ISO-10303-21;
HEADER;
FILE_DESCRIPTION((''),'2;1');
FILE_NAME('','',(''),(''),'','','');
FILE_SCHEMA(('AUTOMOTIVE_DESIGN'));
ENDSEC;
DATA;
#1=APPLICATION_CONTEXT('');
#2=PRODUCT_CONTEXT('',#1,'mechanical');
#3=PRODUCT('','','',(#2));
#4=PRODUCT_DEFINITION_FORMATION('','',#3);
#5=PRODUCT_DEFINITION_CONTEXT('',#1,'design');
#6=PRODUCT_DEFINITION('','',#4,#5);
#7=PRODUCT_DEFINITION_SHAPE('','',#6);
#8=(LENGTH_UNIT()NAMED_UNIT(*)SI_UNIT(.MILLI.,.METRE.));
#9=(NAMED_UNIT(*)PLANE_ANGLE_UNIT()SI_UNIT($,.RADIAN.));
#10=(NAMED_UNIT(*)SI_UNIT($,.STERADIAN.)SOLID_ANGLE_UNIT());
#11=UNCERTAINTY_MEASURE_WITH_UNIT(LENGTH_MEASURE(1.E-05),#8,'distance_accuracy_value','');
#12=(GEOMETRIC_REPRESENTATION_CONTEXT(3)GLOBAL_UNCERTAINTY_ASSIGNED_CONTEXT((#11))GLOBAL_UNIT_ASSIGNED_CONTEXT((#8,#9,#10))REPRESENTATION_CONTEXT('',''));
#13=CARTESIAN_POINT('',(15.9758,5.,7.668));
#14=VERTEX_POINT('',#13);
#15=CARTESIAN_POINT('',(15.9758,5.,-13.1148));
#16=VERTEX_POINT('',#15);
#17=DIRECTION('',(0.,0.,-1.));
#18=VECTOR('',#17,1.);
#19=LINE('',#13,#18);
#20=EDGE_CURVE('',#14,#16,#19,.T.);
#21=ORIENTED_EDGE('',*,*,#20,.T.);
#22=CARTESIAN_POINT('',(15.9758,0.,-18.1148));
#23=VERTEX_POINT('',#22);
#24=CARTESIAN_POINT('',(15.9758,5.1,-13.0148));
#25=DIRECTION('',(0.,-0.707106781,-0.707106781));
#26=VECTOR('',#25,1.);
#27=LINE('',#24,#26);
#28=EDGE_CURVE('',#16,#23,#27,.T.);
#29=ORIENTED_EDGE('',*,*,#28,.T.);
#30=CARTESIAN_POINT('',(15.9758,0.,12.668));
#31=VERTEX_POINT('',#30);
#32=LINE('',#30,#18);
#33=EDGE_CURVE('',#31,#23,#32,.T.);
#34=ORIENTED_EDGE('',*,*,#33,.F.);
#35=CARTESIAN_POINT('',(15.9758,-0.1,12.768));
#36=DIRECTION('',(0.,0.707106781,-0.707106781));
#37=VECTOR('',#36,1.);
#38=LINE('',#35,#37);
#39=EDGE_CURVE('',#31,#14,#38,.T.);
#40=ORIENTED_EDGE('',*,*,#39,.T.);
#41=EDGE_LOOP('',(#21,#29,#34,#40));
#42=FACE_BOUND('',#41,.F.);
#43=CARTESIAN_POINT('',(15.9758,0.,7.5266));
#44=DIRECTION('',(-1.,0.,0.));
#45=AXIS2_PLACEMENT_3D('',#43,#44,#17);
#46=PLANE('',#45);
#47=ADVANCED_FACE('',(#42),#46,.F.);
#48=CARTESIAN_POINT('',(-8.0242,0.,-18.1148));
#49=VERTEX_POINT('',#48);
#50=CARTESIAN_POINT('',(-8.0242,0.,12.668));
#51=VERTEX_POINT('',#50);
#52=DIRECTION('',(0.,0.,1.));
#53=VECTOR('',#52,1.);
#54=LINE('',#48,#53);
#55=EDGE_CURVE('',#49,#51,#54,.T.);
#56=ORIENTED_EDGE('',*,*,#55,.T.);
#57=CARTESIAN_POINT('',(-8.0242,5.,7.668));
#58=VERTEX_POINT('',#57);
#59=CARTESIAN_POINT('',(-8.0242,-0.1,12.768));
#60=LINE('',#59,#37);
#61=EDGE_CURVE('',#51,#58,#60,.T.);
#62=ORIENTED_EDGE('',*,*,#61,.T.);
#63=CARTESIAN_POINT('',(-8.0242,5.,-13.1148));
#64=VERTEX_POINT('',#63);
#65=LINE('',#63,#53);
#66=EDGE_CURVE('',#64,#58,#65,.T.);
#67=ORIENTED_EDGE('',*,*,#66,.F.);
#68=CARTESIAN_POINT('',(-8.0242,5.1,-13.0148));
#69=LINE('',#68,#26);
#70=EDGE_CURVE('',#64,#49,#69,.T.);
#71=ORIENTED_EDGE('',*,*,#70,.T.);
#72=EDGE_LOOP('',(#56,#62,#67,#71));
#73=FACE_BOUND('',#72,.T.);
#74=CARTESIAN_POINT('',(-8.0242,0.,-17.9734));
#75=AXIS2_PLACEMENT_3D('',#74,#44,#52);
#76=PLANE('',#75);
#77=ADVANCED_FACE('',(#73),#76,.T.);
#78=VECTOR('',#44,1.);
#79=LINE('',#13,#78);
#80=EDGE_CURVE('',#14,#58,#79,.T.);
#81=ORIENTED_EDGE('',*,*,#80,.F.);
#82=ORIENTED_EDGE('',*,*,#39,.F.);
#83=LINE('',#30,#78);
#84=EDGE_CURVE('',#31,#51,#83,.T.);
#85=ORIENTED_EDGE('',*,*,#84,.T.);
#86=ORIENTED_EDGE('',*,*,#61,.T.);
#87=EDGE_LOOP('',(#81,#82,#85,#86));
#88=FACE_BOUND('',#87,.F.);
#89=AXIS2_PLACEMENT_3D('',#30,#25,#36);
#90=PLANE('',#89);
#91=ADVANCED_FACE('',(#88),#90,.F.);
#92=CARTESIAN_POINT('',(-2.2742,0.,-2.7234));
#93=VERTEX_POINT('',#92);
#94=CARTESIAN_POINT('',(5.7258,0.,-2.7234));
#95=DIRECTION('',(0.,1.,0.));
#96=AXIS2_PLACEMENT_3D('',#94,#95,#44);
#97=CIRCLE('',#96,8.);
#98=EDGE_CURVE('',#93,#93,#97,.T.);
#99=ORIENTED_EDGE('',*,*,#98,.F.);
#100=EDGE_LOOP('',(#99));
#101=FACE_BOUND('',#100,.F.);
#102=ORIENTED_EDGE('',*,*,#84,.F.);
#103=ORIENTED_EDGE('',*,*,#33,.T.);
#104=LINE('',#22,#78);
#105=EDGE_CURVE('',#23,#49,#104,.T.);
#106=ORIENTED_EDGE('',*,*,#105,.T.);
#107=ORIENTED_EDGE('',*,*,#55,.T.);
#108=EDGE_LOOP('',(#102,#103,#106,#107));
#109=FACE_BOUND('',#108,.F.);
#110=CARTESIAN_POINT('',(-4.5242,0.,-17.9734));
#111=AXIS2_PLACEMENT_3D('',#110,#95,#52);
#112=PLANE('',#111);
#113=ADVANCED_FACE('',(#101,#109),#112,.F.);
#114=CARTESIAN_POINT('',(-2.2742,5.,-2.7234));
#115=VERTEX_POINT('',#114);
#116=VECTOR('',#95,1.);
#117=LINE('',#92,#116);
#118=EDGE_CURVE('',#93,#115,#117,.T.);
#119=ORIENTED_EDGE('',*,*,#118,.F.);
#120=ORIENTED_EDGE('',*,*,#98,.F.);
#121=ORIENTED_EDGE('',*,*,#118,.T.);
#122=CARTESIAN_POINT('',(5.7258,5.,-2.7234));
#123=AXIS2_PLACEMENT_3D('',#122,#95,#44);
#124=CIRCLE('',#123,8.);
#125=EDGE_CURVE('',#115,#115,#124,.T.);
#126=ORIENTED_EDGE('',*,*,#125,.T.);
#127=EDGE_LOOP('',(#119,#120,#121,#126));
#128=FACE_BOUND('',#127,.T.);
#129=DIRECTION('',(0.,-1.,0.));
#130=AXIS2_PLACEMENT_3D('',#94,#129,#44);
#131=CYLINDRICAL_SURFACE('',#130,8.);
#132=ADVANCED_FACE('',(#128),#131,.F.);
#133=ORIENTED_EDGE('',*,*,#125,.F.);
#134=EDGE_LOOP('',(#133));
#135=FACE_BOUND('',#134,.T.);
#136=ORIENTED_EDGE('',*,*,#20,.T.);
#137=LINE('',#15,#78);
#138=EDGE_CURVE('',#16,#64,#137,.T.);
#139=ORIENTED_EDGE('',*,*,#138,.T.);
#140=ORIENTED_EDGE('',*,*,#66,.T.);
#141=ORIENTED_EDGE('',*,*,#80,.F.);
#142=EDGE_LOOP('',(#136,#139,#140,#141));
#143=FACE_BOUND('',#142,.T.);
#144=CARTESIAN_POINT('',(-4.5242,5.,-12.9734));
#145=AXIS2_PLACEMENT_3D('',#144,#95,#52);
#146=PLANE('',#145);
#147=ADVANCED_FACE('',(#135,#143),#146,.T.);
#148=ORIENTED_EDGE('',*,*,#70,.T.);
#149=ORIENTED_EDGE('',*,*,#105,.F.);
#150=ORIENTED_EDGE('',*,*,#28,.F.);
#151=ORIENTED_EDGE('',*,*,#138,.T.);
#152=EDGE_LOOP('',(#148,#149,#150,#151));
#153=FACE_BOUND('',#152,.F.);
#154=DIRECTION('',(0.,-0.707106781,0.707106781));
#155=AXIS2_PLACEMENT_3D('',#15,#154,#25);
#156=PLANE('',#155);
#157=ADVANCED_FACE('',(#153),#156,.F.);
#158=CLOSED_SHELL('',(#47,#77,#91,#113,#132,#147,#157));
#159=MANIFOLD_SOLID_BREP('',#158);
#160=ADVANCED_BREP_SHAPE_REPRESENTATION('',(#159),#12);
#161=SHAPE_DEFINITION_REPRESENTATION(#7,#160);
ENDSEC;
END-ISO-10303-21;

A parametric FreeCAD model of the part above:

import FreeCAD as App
import Part
import Sketcher

V = App.Vector

doc = App.newDocument("Part")
body = doc.addObject("PartDesign::Body", "Body")

# Sketch on XZ plane
sketch1 = body.newObject("Sketcher::SketchObject", "Sketch")
sketch1.AttachmentSupport = (doc.getObject("XZ_Plane"), [""])
sketch1.MapMode = "FlatFace"
sketch1.addGeometry([
    Part.LineSegment(V(-5, -13, 0), V(-5, 8, 0)),  # 0
    Part.LineSegment(V(-5, 8, 0), V(16, 8, 0)),  # 1
    Part.LineSegment(V(16, 8, 0), V(16, -13, 0)),  # 2
    Part.LineSegment(V(16, -13, 0), V(-5, -13, 0)),  # 3
    Part.Circle(V(6, -3, 0), V(0, 0, 1), 8),  # 4
], False)
sketch1.addConstraint([
    Sketcher.Constraint("Coincident", 0, 2, 1, 1),
    Sketcher.Constraint("Coincident", 1, 2, 2, 1),
    Sketcher.Constraint("Coincident", 2, 2, 3, 1),
    Sketcher.Constraint("Coincident", 3, 2, 0, 1),
    Sketcher.Constraint("Vertical", 0),
    Sketcher.Constraint("Horizontal", 1),
    Sketcher.Constraint("Vertical", 2),
    Sketcher.Constraint("Horizontal", 3),
    Sketcher.Constraint("Equal", 3, 0),
    Sketcher.Constraint("Diameter", 4, 16.0),
    Sketcher.Constraint("DistanceX", 1, 1, 1, 2, 20.5),
    Sketcher.Constraint("DistanceX", 0, 2, 4, 3, 10.25),
    Sketcher.Constraint("DistanceY", 4, 3, 0, 2, 10.25),
    Sketcher.Constraint("DistanceX", -1, 1, 4, 3, 5.7258),
    Sketcher.Constraint("DistanceY", 4, 3, -1, 1, 2.7234),
])
pad1 = body.newObject("PartDesign::Pad", "Pad")
pad1.Profile = sketch1
pad1.Length = 5
pad1.Reversed = True

# Sketch on YZ plane
sketch2 = body.newObject("Sketcher::SketchObject", "Sketch001")
sketch2.AttachmentSupport = (doc.getObject("YZ_Plane"), [""])
sketch2.MapMode = "FlatFace"
sketch2.AttachmentOffset = App.Placement(V(0, 0, -4.5242), App.Rotation())
sketch2.addGeometry([
    Part.LineSegment(V(5, 8, 0), V(0, 8, 0)),  # 0
    Part.LineSegment(V(0, 8, 0), V(0, 13, 0)),  # 1
    Part.LineSegment(V(0, 13, 0), V(5, 8, 0)),  # 2
    Part.LineSegment(V(0, -18, 0), V(0, -13, 0)),  # 3
    Part.LineSegment(V(0, -13, 0), V(5, -13, 0)),  # 4
    Part.LineSegment(V(5, -13, 0), V(0, -18, 0)),  # 5
], False)
sketch2.addConstraint([
    Sketcher.Constraint("Coincident", 0, 2, 1, 1),
    Sketcher.Constraint("Coincident", 1, 2, 2, 1),
    Sketcher.Constraint("Coincident", 2, 2, 0, 1),
    Sketcher.Constraint("Coincident", 3, 2, 4, 1),
    Sketcher.Constraint("Coincident", 4, 2, 5, 1),
    Sketcher.Constraint("Coincident", 5, 2, 3, 1),
    Sketcher.Constraint("Horizontal", 0),
    Sketcher.Constraint("Vertical", 1),
    Sketcher.Constraint("Vertical", 3),
    Sketcher.Constraint("Horizontal", 4),
    Sketcher.Constraint("PointOnObject", 0, 2, -2),
    Sketcher.Constraint("PointOnObject", 3, 2, -2),
    Sketcher.Constraint("Perpendicular", 2, 5),
    Sketcher.Constraint("Vertical", 2, 2, 4, 2),
    Sketcher.Constraint("Equal", 4, 1),
    Sketcher.Constraint("DistanceX", 0, 2, 0, 1, 5.0),
    Sketcher.Constraint("DistanceY", 3, 2, 0, 2, 20.5),
    Sketcher.Constraint("DistanceY", -1, 1, 0, 2, 7.5266),
])
pad2 = body.newObject("PartDesign::Pad", "Pad001")
pad2.Profile = sketch2
pad2.Length = 20.5

# Sketch on YZ plane
sketch3 = body.newObject("Sketcher::SketchObject", "Sketch002")
sketch3.AttachmentSupport = (doc.getObject("YZ_Plane"), [""])
sketch3.MapMode = "FlatFace"
sketch3.AttachmentOffset = App.Placement(V(0, 0, -4.5242), App.Rotation())
sketch3.addGeometry([
    Part.LineSegment(V(5, -13, 0), V(0, -18, 0)),
    Part.LineSegment(V(0, -18, 0), V(0, 13, 0)),
    Part.LineSegment(V(0, 13, 0), V(5, 8, 0)),
    Part.LineSegment(V(5, 8, 0), V(5, -13, 0)),
], False)
sketch3.addConstraint([
    Sketcher.Constraint("Coincident", 0, 2, 1, 1),
    Sketcher.Constraint("Coincident", 1, 2, 2, 1),
    Sketcher.Constraint("Coincident", 2, 2, 3, 1),
    Sketcher.Constraint("Coincident", 3, 2, 0, 1),
    Sketcher.Constraint("Vertical", 1),
    Sketcher.Constraint("Vertical", 3),
    Sketcher.Constraint("PointOnObject", 0, 2, -2),
    Sketcher.Constraint("Perpendicular", 0, 2),
    Sketcher.Constraint("Equal", 0, 2),
    Sketcher.Constraint("DistanceY", 1, 1, 1, 2, 30.5),
    Sketcher.Constraint("DistanceY", 3, 2, 3, 1, 20.5),
    Sketcher.Constraint("DistanceY", 0, 2, -1, 1, 17.9734),
])
pad3 = body.newObject("PartDesign::Pad", "Pad002")
pad3.Profile = sketch3
pad3.Length = 3.5
pad3.Reversed = True

# Sketch on YZ plane
sketch4 = body.newObject("Sketcher::SketchObject", "Sketch003")
sketch4.AttachmentSupport = (doc.getObject("YZ_Plane"), [""])
sketch4.MapMode = "FlatFace"
sketch4.AttachmentOffset = App.Placement(V(0, 0, 15.9758), App.Rotation())
sketch4.addGeometry([
    Part.LineSegment(V(0, 12.67, 0), V(0, 12.53, 0)),  # 0
    Part.LineSegment(V(0, 12.53, 0), V(5, 7.53, 0)),  # 1
    Part.LineSegment(V(5, 7.53, 0), V(5, 7.67, 0)),  # 2
    Part.LineSegment(V(5, 7.67, 0), V(0, 12.67, 0)),  # 3
    Part.LineSegment(V(5, -12.97, 0), V(0, -17.97, 0)),  # 4
    Part.LineSegment(V(0, -17.97, 0), V(0, -18.11, 0)),  # 5
    Part.LineSegment(V(0, -18.11, 0), V(5, -13.11, 0)),  # 6
    Part.LineSegment(V(5, -13.11, 0), V(5, -12.97, 0)),  # 7
], False)
sketch4.addConstraint([
    Sketcher.Constraint("Coincident", 0, 2, 1, 1),
    Sketcher.Constraint("Coincident", 1, 2, 2, 1),
    Sketcher.Constraint("Coincident", 2, 2, 3, 1),
    Sketcher.Constraint("Coincident", 3, 2, 0, 1),
    Sketcher.Constraint("Coincident", 4, 2, 5, 1),
    Sketcher.Constraint("Coincident", 5, 2, 6, 1),
    Sketcher.Constraint("Coincident", 6, 2, 7, 1),
    Sketcher.Constraint("Coincident", 7, 2, 4, 1),
    Sketcher.Constraint("Vertical", 0),
    Sketcher.Constraint("Vertical", 2),
    Sketcher.Constraint("Vertical", 5),
    Sketcher.Constraint("Vertical", 7),
    Sketcher.Constraint("PointOnObject", 0, 2, -2),
    Sketcher.Constraint("PointOnObject", 4, 2, -2),
    Sketcher.Constraint("Parallel", 1, 3),
    Sketcher.Constraint("Perpendicular", 3, 4),
    Sketcher.Constraint("Parallel", 4, 6),
    Sketcher.Constraint("Vertical", 2, 2, 6, 2),
    Sketcher.Constraint("Equal", 2, 5),
    Sketcher.Constraint("Equal", 3, 4),
    Sketcher.Constraint("DistanceX", -1, 1, 1, 2, 5.0),
    Sketcher.Constraint("DistanceY", 4, 2, 1, 2, 25.5),
    Sketcher.Constraint("DistanceY", 0, 2, 0, 1, 0.1414),
    Sketcher.Constraint("DistanceY", -1, 1, 2, 2, 7.668),
])
pad4 = body.newObject("PartDesign::Pad", "Pad003")
pad4.Profile = sketch4
pad4.Length = 24
pad4.Reversed = True

doc.recompute()
